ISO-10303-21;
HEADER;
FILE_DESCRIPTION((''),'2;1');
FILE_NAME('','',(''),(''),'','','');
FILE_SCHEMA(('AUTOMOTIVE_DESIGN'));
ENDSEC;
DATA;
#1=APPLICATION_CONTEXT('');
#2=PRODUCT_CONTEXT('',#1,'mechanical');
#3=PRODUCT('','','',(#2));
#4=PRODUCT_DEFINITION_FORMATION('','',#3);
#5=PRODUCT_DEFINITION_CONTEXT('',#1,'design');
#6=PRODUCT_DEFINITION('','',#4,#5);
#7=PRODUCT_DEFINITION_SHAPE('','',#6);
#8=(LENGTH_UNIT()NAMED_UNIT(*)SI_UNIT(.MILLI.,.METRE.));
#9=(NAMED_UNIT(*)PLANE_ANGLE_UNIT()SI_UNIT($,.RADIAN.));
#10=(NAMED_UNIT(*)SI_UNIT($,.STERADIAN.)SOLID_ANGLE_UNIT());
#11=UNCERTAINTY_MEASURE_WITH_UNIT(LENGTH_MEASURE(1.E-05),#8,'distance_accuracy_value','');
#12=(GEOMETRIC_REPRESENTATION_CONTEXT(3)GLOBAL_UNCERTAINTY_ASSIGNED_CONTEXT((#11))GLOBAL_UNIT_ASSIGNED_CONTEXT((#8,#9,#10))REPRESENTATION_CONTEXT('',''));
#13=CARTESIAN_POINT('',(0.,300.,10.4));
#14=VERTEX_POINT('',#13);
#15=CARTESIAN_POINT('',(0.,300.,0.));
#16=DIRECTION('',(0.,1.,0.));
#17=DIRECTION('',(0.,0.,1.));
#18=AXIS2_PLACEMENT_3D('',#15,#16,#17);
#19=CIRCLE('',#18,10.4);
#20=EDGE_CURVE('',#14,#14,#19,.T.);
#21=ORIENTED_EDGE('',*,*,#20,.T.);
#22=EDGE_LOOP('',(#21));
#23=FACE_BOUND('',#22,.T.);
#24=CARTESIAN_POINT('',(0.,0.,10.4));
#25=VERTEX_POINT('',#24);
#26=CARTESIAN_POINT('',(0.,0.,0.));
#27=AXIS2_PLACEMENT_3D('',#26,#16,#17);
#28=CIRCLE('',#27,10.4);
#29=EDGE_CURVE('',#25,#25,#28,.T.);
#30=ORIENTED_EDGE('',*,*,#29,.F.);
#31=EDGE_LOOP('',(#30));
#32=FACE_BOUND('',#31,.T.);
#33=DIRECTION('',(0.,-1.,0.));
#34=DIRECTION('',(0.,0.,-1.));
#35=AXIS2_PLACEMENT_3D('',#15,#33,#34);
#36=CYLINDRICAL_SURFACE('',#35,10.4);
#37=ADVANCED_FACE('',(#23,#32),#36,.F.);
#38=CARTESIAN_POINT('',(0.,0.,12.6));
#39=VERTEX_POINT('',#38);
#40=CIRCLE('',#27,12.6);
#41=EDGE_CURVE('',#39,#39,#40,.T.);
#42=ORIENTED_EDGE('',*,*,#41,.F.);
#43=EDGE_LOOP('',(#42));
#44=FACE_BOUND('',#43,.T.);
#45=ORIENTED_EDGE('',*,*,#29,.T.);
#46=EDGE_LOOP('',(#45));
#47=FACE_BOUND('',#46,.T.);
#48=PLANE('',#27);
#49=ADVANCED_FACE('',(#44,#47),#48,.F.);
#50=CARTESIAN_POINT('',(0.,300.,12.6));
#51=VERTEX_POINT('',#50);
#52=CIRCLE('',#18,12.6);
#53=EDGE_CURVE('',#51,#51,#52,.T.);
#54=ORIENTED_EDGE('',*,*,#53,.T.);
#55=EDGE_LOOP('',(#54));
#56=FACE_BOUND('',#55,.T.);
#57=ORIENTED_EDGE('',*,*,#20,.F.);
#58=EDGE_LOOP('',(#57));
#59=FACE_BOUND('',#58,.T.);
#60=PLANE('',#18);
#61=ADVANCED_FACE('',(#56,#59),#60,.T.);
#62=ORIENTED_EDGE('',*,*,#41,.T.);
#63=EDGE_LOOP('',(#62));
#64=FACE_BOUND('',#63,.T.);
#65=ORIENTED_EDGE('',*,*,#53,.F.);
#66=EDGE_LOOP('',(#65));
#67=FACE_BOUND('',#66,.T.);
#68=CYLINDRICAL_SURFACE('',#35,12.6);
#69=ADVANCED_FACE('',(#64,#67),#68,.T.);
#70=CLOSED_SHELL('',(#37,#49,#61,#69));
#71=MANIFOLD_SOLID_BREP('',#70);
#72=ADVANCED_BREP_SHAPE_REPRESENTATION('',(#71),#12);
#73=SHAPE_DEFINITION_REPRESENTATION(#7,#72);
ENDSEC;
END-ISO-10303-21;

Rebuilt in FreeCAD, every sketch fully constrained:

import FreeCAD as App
import Part
import Sketcher

V = App.Vector


def faces_at(feature, points):
    """Names of the faces that lie closest to the given points."""
    faces = feature.Shape.Faces
    near = lambda p: min(range(len(faces)), key=lambda i: faces[i].distToShape(Part.Vertex(*p))[0])
    return sorted({f"Face{near(p) + 1}" for p in points})

doc = App.newDocument("Part")
body = doc.addObject("PartDesign::Body", "Body")

sketch1 = body.newObject("Sketcher::SketchObject", "Sketch")
sketch1.AttachmentSupport = (doc.getObject("XZ_Plane"), [""])
sketch1.MapMode = "FlatFace"
sketch1.addGeometry(Part.Circle(V(0, 0, 0), V(0, 0, 1), 12.6), False)
sketch1.addConstraint([
    Sketcher.Constraint("Coincident", 0, 3, -1, 1),
    Sketcher.Constraint("Diameter", 0, 25.2),
])
pad1 = body.newObject("PartDesign::Pad", "Pad")
pad1.Profile = sketch1
pad1.Length = 300
pad1.Reversed = True
doc.recompute()

thickness = body.newObject("PartDesign::Thickness", "Thickness")
thickness.Base = (pad1, faces_at(pad1, [(0, 300, 0), (0, 0, 0)]))
thickness.Value = 2.2
thickness.Reversed = True
thickness.Join = "Intersection"

doc.recompute()
